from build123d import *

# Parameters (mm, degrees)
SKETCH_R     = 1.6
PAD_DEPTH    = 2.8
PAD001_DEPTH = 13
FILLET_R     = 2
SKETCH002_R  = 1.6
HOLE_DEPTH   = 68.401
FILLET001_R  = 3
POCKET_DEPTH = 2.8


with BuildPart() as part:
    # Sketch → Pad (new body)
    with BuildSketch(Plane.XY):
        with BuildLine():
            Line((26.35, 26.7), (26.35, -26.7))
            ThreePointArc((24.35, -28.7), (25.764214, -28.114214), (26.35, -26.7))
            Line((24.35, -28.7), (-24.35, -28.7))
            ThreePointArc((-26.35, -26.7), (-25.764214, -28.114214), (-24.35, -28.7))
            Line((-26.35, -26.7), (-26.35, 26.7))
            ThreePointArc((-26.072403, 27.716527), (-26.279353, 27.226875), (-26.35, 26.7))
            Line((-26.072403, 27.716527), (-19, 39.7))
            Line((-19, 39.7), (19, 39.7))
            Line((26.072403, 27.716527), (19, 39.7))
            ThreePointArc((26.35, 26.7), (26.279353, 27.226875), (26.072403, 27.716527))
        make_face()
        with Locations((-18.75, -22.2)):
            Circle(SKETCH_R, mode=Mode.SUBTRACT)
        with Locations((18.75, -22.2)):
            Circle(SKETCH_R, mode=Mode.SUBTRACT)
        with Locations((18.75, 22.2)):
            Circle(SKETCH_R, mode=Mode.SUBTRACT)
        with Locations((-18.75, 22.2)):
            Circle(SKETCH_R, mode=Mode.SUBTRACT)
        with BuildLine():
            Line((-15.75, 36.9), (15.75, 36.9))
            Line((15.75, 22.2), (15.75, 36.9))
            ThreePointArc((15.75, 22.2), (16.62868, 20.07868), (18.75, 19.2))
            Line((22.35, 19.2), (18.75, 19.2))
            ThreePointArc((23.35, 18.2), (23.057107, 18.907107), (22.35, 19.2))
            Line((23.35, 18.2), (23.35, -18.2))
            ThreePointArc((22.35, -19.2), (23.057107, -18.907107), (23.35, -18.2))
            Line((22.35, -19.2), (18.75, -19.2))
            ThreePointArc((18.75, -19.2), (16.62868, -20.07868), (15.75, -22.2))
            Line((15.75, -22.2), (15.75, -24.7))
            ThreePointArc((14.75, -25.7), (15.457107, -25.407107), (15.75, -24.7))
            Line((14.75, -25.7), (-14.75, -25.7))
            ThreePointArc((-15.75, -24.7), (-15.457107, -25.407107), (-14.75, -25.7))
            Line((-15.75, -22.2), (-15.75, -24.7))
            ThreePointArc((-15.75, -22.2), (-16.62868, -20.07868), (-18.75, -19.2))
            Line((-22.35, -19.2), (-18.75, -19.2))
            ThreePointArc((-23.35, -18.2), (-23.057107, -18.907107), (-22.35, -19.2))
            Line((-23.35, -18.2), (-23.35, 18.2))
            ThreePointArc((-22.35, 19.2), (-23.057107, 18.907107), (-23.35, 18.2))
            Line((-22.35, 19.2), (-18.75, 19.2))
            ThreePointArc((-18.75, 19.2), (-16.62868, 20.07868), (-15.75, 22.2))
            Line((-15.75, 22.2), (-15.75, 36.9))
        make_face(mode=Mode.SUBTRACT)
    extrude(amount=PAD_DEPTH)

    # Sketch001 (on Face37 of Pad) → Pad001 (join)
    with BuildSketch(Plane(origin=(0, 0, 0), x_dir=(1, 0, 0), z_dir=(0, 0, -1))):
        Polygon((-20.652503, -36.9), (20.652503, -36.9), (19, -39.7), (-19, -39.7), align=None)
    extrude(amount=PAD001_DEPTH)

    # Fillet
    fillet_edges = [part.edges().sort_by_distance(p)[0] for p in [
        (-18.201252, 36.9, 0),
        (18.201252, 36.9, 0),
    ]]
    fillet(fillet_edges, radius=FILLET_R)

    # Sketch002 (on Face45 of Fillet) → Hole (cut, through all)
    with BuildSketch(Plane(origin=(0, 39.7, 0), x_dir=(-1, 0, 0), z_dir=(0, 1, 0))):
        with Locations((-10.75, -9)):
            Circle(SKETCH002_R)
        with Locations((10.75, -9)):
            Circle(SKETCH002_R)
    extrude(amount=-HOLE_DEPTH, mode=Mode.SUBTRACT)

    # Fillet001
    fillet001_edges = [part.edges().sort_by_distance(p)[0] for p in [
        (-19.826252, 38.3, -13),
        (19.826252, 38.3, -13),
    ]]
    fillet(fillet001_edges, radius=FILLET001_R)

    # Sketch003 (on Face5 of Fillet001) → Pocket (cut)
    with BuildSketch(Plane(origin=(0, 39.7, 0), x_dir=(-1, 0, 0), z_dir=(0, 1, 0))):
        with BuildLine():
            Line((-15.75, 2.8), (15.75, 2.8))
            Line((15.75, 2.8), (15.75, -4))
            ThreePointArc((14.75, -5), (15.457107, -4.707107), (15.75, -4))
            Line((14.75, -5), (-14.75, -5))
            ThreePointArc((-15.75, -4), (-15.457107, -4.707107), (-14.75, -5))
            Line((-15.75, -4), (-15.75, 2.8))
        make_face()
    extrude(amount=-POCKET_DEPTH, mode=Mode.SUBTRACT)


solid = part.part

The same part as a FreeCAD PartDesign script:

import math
import FreeCAD as App
import Part
import Sketcher
from FreeCAD import Vector
Q = App.Units.Quantity


def edges_at(feature, points):
    """Names of the edges that pass closest to the given points."""
    edges = feature.Shape.Edges
    near = lambda p: min(range(len(edges)), key=lambda i: edges[i].distToShape(Part.Vertex(*p))[0])
    return sorted({f"Edge{near(p) + 1}" for p in points})

doc = App.newDocument("Part")
params = doc.addObject("Spreadsheet::Sheet", "Params")
for row, (alias, value) in enumerate([
    ("sketch1_radius", "1.999999 mm"),
    ("sketch1_radius2", "3.000001 mm"),
    ("sketch1_radius3", "0.999999 mm"),
    ("sketch1_diameter", "3.2 mm"),
    ("sketch1_width", "38 mm"),
    ("pad1_length", "2.8 mm"),
    ("sketch2_width", "38 mm"),
    ("pad2_length", "13 mm"),
    ("fillet_radius", "2 mm"),
    ("sketch3_diameter", "3.2 mm"),
    ("fillet2_radius", "3 mm"),
    ("sketch4_radius", "0.999999 mm"),
    ("sketch4_width", "31.5 mm"),
    ("sketch4_height", "6.8 mm"),
    ("pocket2_length", "2.8 mm"),
], start=1):
    params.set(f"A{row}", alias)
    params.set(f"B{row}", "=" + value)
    params.setAlias(f"B{row}", alias)

body = doc.addObject("PartDesign::Body", "Body")

sketch1 = body.newObject("Sketcher::SketchObject", "Sketch")
sketch1.AttachmentSupport = (doc.getObject("XY_Plane"), [""])
sketch1.MapMode = "FlatFace"
sketch1.addGeometry([
    Part.LineSegment(Vector(26.4, -26.7, 0), Vector(26.4, 26.7, 0)),
    Part.ArcOfCircle(Part.Circle(Vector(24.4, 26.7, 0), Vector(0, 0, 1), 2), math.radians(0), math.radians(31)),
    Part.LineSegment(Vector(26.1, 27.7, 0), Vector(19, 39.7, 0)),
    Part.LineSegment(Vector(19, 39.7, 0), Vector(-19, 39.7, 0)),
    Part.LineSegment(Vector(-19, 39.7, 0), Vector(-26.1, 27.7, 0)),
    Part.ArcOfCircle(Part.Circle(Vector(-24.4, 26.7, 0), Vector(0, 0, 1), 2), math.radians(149), math.radians(180)),
    Part.LineSegment(Vector(-26.4, 26.7, 0), Vector(-26.4, -26.7, 0)),
    Part.ArcOfCircle(Part.Circle(Vector(-24.4, -26.7, 0), Vector(0, 0, 1), 2), math.radians(180), math.radians(270)),
    Part.LineSegment(Vector(-24.4, -28.7, 0), Vector(24.4, -28.7, 0)),
    Part.ArcOfCircle(Part.Circle(Vector(24.4, -26.7, 0), Vector(0, 0, 1), 2), math.radians(-90), math.radians(0)),
    Part.Circle(Vector(18.8, -22.2, 0), Vector(0, 0, 1), 1.6),
    Part.Circle(Vector(-18.8, -22.2, 0), Vector(0, 0, 1), 1.6),
    Part.Circle(Vector(18.8, 22.2, 0), Vector(0, 0, 1), 1.6),
    Part.LineSegment(Vector(-15.8, 36.9, 0), Vector(15.8, 36.9, 0)),
    Part.LineSegment(Vector(15.8, 36.9, 0), Vector(15.8, 22.2, 0)),
    Part.ArcOfCircle(Part.Circle(Vector(18.8, 22.2, 0), Vector(0, 0, 1), 3), math.radians(-180), math.radians(-90)),
    Part.LineSegment(Vector(18.8, 19.2, 0), Vector(22.4, 19.2, 0)),
    Part.ArcOfCircle(Part.Circle(Vector(22.4, 18.2, 0), Vector(0, 0, 1), 1), math.radians(0), math.radians(90)),
    Part.LineSegment(Vector(23.4, 18.2, 0), Vector(23.4, -18.2, 0)),
    Part.ArcOfCircle(Part.Circle(Vector(22.4, -18.2, 0), Vector(0, 0, 1), 1), math.radians(-90), math.radians(0)),
    Part.LineSegment(Vector(22.4, -19.2, 0), Vector(18.8, -19.2, 0)),
    Part.ArcOfCircle(Part.Circle(Vector(18.8, -22.2, 0), Vector(0, 0, 1), 3), math.radians(90), math.radians(180)),
    Part.LineSegment(Vector(15.8, -22.2, 0), Vector(15.8, -24.7, 0)),
    Part.ArcOfCircle(Part.Circle(Vector(14.8, -24.7, 0), Vector(0, 0, 1), 1), math.radians(-90), math.radians(0)),
    Part.LineSegment(Vector(14.8, -25.7, 0), Vector(-14.8, -25.7, 0)),
    Part.ArcOfCircle(Part.Circle(Vector(-14.8, -24.7, 0), Vector(0, 0, 1), 1), math.radians(180), math.radians(270)),
    Part.LineSegment(Vector(-15.8, -24.7, 0), Vector(-15.8, -22.2, 0)),
    Part.ArcOfCircle(Part.Circle(Vector(-18.8, -22.2, 0), Vector(0, 0, 1), 3), math.radians(0), math.radians(90)),
    Part.LineSegment(Vector(-18.8, -19.2, 0), Vector(-22.4, -19.2, 0)),
    Part.ArcOfCircle(Part.Circle(Vector(-22.4, -18.2, 0), Vector(0, 0, 1), 1), math.radians(180), math.radians(270)),
    Part.LineSegment(Vector(-23.4, -18.2, 0), Vector(-23.4, 18.2, 0)),
    Part.ArcOfCircle(Part.Circle(Vector(-22.4, 18.2, 0), Vector(0, 0, 1), 1), math.radians(90), math.radians(180)),
    Part.LineSegment(Vector(-22.4, 19.2, 0), Vector(-18.8, 19.2, 0)),
    Part.ArcOfCircle(Part.Circle(Vector(-18.8, 22.2, 0), Vector(0, 0, 1), 3), math.radians(-90), math.radians(0)),
    Part.LineSegment(Vector(-15.8, 22.2, 0), Vector(-15.8, 36.9, 0)),
    Part.Circle(Vector(-18.8, 22.2, 0), Vector(0, 0, 1), 1.6),
], False)
sketch1.addConstraint([
    Sketcher.Constraint("Tangent", 0, 2, 1, 1),
    Sketcher.Constraint("Tangent", 1, 2, 2, 1),
    Sketcher.Constraint("Coincident", 2, 2, 3, 1),
    Sketcher.Constraint("Coincident", 3, 2, 4, 1),
    Sketcher.Constraint("Tangent", 4, 2, 5, 1),
    Sketcher.Constraint("Tangent", 5, 2, 6, 1),
    Sketcher.Constraint("Tangent", 6, 2, 7, 1),
    Sketcher.Constraint("Tangent", 7, 2, 8, 1),
    Sketcher.Constraint("Tangent", 8, 2, 9, 1),
    Sketcher.Constraint("Tangent", 9, 2, 0, 1),
    Sketcher.Constraint("Coincident", 13, 2, 14, 1),
    Sketcher.Constraint("Tangent", 14, 2, 15, 1),
    Sketcher.Constraint("Tangent", 15, 2, 16, 1),
    Sketcher.Constraint("Tangent", 16, 2, 17, 2),
    Sketcher.Constraint("Tangent", 17, 1, 18, 1),
    Sketcher.Constraint("Tangent", 18, 2, 19, 2),
    Sketcher.Constraint("Tangent", 19, 1, 20, 1),
    Sketcher.Constraint("Tangent", 20, 2, 21, 1),
    Sketcher.Constraint("Tangent", 21, 2, 22, 1),
    Sketcher.Constraint("Tangent", 22, 2, 23, 2),
    Sketcher.Constraint("Tangent", 23, 1, 24, 1),
    Sketcher.Constraint("Tangent", 24, 2, 25, 2),
    Sketcher.Constraint("Tangent", 25, 1, 26, 1),
    Sketcher.Constraint("Tangent", 26, 2, 27, 1),
    Sketcher.Constraint("Tangent", 27, 2, 28, 1),
    Sketcher.Constraint("Tangent", 28, 2, 29, 2),
    Sketcher.Constraint("Tangent", 29, 1, 30, 1),
    Sketcher.Constraint("Tangent", 30, 2, 31, 2),
    Sketcher.Constraint("Tangent", 31, 1, 32, 1),
    Sketcher.Constraint("Tangent", 32, 2, 33, 1),
    Sketcher.Constraint("Tangent", 33, 2, 34, 1),
    Sketcher.Constraint("Coincident", 34, 2, 13, 1),
    Sketcher.Constraint("Vertical", 0),
    Sketcher.Constraint("Horizontal", 3),
    Sketcher.Constraint("Vertical", 6),
    Sketcher.Constraint("Horizontal", 8),
    Sketcher.Constraint("Horizontal", 13),
    Sketcher.Constraint("Vertical", 14),
    Sketcher.Constraint("Horizontal", 16),
    Sketcher.Constraint("Vertical", 18),
    Sketcher.Constraint("Horizontal", 20),
    Sketcher.Constraint("Vertical", 22),
    Sketcher.Constraint("Horizontal", 24),
    Sketcher.Constraint("Vertical", 26),
    Sketcher.Constraint("Horizontal", 28),
    Sketcher.Constraint("Vertical", 30),
    Sketcher.Constraint("Horizontal", 32),
    Sketcher.Constraint("Vertical", 34),
    Sketcher.Constraint("Coincident", 15, 3, 12, 3),
    Sketcher.Constraint("Coincident", 21, 3, 10, 3),
    Sketcher.Constraint("Coincident", 27, 3, 11, 3),
    Sketcher.Constraint("Coincident", 35, 3, 33, 3),
    Sketcher.Constraint("Equal", 1, 5),
    Sketcher.Constraint("Equal", 7, 9),
    Sketcher.Constraint("Equal", 10, 11),
    Sketcher.Constraint("Equal", 11, 12),
    Sketcher.Constraint("Equal", 17, 19),
    Sketcher.Constraint("Equal", 15, 21),
    Sketcher.Constraint("Equal", 19, 23),
    Sketcher.Constraint("Equal", 23, 25),
    Sketcher.Constraint("Equal", 21, 27),
    Sketcher.Constraint("Equal", 25, 29),
    Sketcher.Constraint("Equal", 29, 31),
    Sketcher.Constraint("Equal", 27, 33),
    Sketcher.Constraint("Equal", 12, 35),
    Sketcher.Constraint("Symmetric", 1, 3, 7, 3, -1, 1),
    Sketcher.Constraint("Symmetric", 5, 3, 9, 3, -1, 1),
    Sketcher.Constraint("Symmetric", 11, 3, 12, 3, -1, 1),
    Sketcher.Constraint("Symmetric", 19, 3, 31, 3, -1, 1),
    Sketcher.Constraint("Symmetric", 10, 3, 11, 3, -2),
    Sketcher.Constraint("Horizontal", 1, 2, 4, 2),
    Sketcher.Constraint("Vertical", 27, 3, 33, 3),
    Sketcher.Constraint("Radius", 7, Q("1.999999 mm")),
    Sketcher.Constraint("Radius", 15, Q("3.000001 mm")),
    Sketcher.Constraint("Radius", 17, Q("0.999999 mm")),
    Sketcher.Constraint("Diameter", 10, Q("3.2 mm")),
    Sketcher.Constraint("DistanceX", 3, 2, 3, 1, Q("38 mm")),
    Sketcher.Constraint("DistanceX", 8, 1, 8, 2, Q("48.7 mm")),
    Sketcher.Constraint("DistanceX", 13, 1, 13, 2, Q("31.5 mm")),
    Sketcher.Constraint("DistanceX", 16, 1, 16, 2, Q("3.6 mm")),
    Sketcher.Constraint("DistanceY", 0, 1, 0, 2, Q("53.4 mm")),
    Sketcher.Constraint("DistanceY", 14, 2, 14, 1, Q("14.7 mm")),
    Sketcher.Constraint("DistanceY", 18, 2, 18, 1, Q("36.4 mm")),
    Sketcher.Constraint("DistanceY", 22, 2, 22, 1, Q("2.5 mm")),
    Sketcher.Constraint("DistanceY", 1, 3, 2, 2, Q("12.999999 mm")),
])
sketch1.setExpression("Constraints[72]", "Params.sketch1_radius")
sketch1.setExpression("Constraints[73]", "Params.sketch1_radius2")
sketch1.setExpression("Constraints[74]", "Params.sketch1_radius3")
sketch1.setExpression("Constraints[75]", "Params.sketch1_diameter")
sketch1.setExpression("Constraints[76]", "Params.sketch1_width")
pad1 = body.newObject("PartDesign::Pad", "Pad")
pad1.Profile = sketch1
pad1.setExpression("Length", "Params.pad1_length")

sketch2 = body.newObject("Sketcher::SketchObject", "Sketch001")
sketch2.AttachmentSupport = (doc.getObject("XY_Plane"), [""])
sketch2.MapMode = "FlatFace"
sketch2.addGeometry([
    Part.LineSegment(Vector(20.7, 36.9, 0), Vector(-20.7, 36.9, 0)),
    Part.LineSegment(Vector(-20.7, 36.9, 0), Vector(-19, 39.7, 0)),
    Part.LineSegment(Vector(-19, 39.7, 0), Vector(19, 39.7, 0)),
    Part.LineSegment(Vector(19, 39.7, 0), Vector(20.7, 36.9, 0)),
], False)
sketch2.addConstraint([
    Sketcher.Constraint("Coincident", 0, 2, 1, 1),
    Sketcher.Constraint("Coincident", 1, 2, 2, 1),
    Sketcher.Constraint("Coincident", 2, 2, 3, 1),
    Sketcher.Constraint("Coincident", 3, 2, 0, 1),
    Sketcher.Constraint("Horizontal", 0),
    Sketcher.Constraint("Horizontal", 2),
    Sketcher.Constraint("Equal", 1, 3),
    Sketcher.Constraint("DistanceX", 2, 1, 2, 2, Q("38 mm")),
    Sketcher.Constraint("DistanceX", 1, 2, -1, 1, Q("19 mm")),
    Sketcher.Constraint("DistanceY", -1, 1, 0, 2, Q("36.9 mm")),
    Sketcher.Constraint("DistanceY", -1, 1, 1, 2, Q("39.7 mm")),
    Sketcher.Constraint("Distance", 1, Q("3.251271 mm")),
])
sketch2.setExpression("Constraints[7]", "Params.sketch2_width")
pad2 = body.newObject("PartDesign::Pad", "Pad001")
pad2.Profile = sketch2
pad2.setExpression("Length", "Params.pad2_length")
pad2.Reversed = True
doc.recompute()

fillet = body.newObject("PartDesign::Fillet", "Fillet")
fillet.Base = (pad2, edges_at(pad2, [(-18.201, 36.9, 0), (18.201, 36.9, 0)]))
fillet.setExpression("Radius", "Params.fillet_radius")

sketch3 = body.newObject("Sketcher::SketchObject", "Sketch002")
sketch3.AttachmentSupport = (doc.getObject("XZ_Plane"), [""])
sketch3.MapMode = "FlatFace"
sketch3.AttachmentOffset = App.Placement(Vector(0, 0, -39.7), App.Rotation())
sketch3.addGeometry([
    Part.Circle(Vector(10.8, -9, 0), Vector(0, 0, 1), 1.6),
    Part.Circle(Vector(-10.8, -9, 0), Vector(0, 0, 1), 1.6),
], False)
sketch3.addConstraint([
    Sketcher.Constraint("Equal", 0, 1),
    Sketcher.Constraint("Symmetric", 0, 3, 1, 3, -2),
    Sketcher.Constraint("Diameter", 0, Q("3.2 mm")),
    Sketcher.Constraint("DistanceY", 0, 3, -1, 1, Q("9 mm")),
    Sketcher.Constraint("DistanceX", 1, 3, 0, 3, Q("21.5 mm")),
])
sketch3.setExpression("Constraints[2]", "Params.sketch3_diameter")
pocket1 = body.newObject("PartDesign::Pocket", "Pocket")
pocket1.Profile = sketch3
pocket1.Type = "ThroughAll"
pocket1.Reversed = True
doc.recompute()

fillet2 = body.newObject("PartDesign::Fillet", "Fillet001")
fillet2.Base = (pocket1, edges_at(pocket1, [(-19.826, 38.3, -13), (19.826, 38.3, -13)]))
fillet2.setExpression("Radius", "Params.fillet2_radius")

sketch4 = body.newObject("Sketcher::SketchObject", "Sketch003")
sketch4.AttachmentSupport = (doc.getObject("XZ_Plane"), [""])
sketch4.MapMode = "FlatFace"
sketch4.AttachmentOffset = App.Placement(Vector(0, 0, -39.7), App.Rotation())
sketch4.addGeometry([
    Part.LineSegment(Vector(-15.8, 2.8, 0), Vector(15.8, 2.8, 0)),
    Part.LineSegment(Vector(15.8, 2.8, 0), Vector(15.8, -4, 0)),
    Part.ArcOfCircle(Part.Circle(Vector(14.8, -4, 0), Vector(0, 0, 1), 1), math.radians(-90), math.radians(0)),
    Part.LineSegment(Vector(14.8, -5, 0), Vector(-14.8, -5, 0)),
    Part.ArcOfCircle(Part.Circle(Vector(-14.8, -4, 0), Vector(0, 0, 1), 1), math.radians(180), math.radians(270)),
    Part.LineSegment(Vector(-15.8, -4, 0), Vector(-15.8, 2.8, 0)),
], False)
sketch4.addConstraint([
    Sketcher.Constraint("Coincident", 0, 2, 1, 1),
    Sketcher.Constraint("Tangent", 1, 2, 2, 2),
    Sketcher.Constraint("Tangent", 2, 1, 3, 1),
    Sketcher.Constraint("Tangent", 3, 2, 4, 2),
    Sketcher.Constraint("Tangent", 4, 1, 5, 1),
    Sketcher.Constraint("Coincident", 5, 2, 0, 1),
    Sketcher.Constraint("Horizontal", 0),
    Sketcher.Constraint("Vertical", 1),
    Sketcher.Constraint("Horizontal", 3),
    Sketcher.Constraint("Vertical", 5),
    Sketcher.Constraint("Equal", 2, 4),
    Sketcher.Constraint("Radius", 2, Q("0.999999 mm")),
    Sketcher.Constraint("DistanceX", 0, 1, 0, 2, Q("31.5 mm")),
    Sketcher.Constraint("DistanceY", 1, 2, 1, 1, Q("6.8 mm")),
    Sketcher.Constraint("DistanceY", 2, 3, -1, 1, Q("4.000001 mm")),
    Sketcher.Constraint("DistanceX", -1, 1, 2, 3, Q("14.750001 mm")),
])
sketch4.setExpression("Constraints[11]", "Params.sketch4_radius")
sketch4.setExpression("Constraints[12]", "Params.sketch4_width")
sketch4.setExpression("Constraints[13]", "Params.sketch4_height")
pocket2 = body.newObject("PartDesign::Pocket", "Pocket001")
pocket2.Profile = sketch4
pocket2.setExpression("Length", "Params.pocket2_length")
pocket2.Reversed = True

doc.recompute()
